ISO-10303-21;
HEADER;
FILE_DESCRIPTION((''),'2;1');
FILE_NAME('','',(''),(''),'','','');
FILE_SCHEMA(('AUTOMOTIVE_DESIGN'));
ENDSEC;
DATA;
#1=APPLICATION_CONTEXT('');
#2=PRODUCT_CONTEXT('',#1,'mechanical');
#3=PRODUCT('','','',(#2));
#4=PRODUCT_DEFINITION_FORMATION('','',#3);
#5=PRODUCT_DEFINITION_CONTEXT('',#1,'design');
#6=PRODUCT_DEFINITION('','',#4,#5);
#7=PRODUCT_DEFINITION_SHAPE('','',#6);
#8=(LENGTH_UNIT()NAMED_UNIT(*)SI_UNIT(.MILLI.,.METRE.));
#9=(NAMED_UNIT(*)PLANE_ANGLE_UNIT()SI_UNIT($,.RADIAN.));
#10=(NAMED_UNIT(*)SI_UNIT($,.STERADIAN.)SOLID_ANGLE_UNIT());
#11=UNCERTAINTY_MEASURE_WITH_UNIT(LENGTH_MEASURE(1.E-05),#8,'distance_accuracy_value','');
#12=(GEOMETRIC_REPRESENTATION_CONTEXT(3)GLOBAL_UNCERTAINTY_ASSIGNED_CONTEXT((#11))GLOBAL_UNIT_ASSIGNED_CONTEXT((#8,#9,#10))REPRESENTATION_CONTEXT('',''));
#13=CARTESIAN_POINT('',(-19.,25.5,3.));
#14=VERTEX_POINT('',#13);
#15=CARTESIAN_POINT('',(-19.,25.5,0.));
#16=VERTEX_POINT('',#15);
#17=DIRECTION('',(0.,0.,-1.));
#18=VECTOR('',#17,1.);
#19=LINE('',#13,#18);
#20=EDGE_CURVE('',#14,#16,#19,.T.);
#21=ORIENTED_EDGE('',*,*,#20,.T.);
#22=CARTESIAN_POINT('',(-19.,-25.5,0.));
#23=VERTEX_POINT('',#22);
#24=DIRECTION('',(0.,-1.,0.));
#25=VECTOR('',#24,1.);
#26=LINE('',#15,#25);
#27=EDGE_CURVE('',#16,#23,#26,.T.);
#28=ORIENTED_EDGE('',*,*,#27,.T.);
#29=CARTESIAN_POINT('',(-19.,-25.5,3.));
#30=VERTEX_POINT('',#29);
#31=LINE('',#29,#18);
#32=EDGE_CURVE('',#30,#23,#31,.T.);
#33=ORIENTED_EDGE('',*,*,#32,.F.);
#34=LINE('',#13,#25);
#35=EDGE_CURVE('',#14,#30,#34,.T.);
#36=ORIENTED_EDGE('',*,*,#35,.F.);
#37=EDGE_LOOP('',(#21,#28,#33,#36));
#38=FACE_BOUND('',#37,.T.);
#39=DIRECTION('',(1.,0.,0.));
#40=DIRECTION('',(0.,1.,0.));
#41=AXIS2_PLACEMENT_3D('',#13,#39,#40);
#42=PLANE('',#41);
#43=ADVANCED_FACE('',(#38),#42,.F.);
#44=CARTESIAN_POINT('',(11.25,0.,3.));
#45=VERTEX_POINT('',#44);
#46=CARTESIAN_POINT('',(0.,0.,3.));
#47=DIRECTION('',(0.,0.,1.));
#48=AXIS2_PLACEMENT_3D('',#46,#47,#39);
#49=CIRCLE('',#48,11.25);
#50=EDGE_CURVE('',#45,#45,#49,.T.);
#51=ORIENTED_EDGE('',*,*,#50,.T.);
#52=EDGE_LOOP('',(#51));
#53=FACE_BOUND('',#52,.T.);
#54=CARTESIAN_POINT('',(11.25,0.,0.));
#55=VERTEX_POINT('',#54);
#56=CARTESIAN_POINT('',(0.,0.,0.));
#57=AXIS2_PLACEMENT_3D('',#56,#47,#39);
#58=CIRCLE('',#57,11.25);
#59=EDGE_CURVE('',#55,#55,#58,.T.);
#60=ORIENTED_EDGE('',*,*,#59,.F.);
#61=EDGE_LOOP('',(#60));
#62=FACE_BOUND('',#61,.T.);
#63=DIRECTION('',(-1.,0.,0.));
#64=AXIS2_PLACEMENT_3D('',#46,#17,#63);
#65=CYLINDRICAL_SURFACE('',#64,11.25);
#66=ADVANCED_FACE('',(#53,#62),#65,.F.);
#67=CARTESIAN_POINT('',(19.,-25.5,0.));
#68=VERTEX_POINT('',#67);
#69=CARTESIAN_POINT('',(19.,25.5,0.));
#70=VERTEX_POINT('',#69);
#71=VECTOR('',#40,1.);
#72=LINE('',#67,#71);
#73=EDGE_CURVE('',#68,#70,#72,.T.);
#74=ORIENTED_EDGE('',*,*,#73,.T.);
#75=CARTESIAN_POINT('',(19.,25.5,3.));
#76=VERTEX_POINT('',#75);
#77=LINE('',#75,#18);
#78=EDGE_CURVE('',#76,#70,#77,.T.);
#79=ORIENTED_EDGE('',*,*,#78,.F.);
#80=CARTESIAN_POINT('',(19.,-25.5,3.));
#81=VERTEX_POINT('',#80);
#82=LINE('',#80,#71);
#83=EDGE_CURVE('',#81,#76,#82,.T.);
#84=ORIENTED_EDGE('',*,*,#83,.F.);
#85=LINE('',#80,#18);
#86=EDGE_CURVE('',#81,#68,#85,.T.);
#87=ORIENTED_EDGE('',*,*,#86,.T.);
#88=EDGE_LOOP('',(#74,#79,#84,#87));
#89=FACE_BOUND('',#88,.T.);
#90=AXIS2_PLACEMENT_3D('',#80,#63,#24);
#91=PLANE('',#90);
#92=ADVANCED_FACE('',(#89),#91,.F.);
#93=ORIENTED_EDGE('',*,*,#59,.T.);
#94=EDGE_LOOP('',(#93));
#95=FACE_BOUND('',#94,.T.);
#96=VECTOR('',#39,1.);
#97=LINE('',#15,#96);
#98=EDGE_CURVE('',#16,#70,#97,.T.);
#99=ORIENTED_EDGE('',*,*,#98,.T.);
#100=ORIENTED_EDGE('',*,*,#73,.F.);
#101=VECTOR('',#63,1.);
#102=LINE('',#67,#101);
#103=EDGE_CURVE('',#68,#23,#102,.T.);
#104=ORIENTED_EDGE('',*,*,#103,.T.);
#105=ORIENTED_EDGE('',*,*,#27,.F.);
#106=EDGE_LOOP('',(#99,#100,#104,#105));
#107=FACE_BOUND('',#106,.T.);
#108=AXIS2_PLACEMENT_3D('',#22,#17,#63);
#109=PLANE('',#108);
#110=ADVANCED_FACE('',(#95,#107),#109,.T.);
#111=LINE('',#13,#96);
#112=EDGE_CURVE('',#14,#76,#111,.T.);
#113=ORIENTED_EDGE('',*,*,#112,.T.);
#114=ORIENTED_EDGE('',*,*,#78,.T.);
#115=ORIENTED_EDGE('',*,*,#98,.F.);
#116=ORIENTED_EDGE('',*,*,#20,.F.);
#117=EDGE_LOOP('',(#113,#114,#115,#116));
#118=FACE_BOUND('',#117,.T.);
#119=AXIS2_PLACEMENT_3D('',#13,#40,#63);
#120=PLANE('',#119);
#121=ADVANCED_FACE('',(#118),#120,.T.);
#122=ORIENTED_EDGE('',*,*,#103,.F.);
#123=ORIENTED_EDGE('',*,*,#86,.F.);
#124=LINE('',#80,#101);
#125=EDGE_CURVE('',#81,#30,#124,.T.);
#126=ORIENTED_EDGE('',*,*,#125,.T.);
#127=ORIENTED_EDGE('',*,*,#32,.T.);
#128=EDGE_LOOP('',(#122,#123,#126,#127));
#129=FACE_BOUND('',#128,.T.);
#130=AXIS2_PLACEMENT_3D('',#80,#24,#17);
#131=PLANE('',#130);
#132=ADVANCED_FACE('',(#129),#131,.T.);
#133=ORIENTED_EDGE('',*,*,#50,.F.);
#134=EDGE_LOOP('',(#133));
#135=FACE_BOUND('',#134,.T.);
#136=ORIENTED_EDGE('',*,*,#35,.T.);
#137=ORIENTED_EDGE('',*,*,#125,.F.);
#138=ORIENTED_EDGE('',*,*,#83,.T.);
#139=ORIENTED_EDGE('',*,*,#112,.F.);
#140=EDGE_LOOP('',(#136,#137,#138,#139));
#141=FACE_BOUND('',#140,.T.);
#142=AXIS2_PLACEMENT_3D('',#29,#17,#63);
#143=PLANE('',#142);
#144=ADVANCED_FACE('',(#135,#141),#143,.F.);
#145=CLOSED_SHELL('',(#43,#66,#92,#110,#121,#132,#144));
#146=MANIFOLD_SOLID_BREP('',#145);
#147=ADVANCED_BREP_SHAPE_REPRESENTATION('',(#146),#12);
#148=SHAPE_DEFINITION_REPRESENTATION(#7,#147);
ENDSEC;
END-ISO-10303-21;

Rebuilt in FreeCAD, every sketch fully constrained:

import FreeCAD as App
import Part
import Sketcher

V = App.Vector
Q = App.Units.Quantity


def add_polygon(sketch, points):
    """Adds a closed chain of lines whose ends are joined by coincident constraints."""
    first, n = sketch.GeometryCount, len(points)
    for a, b in zip(points, points[1:] + points[:1]):
        sketch.addGeometry(Part.LineSegment(App.Vector(*a, 0), App.Vector(*b, 0)), False)
    for i in range(n):
        sketch.addConstraint(Sketcher.Constraint("Coincident", first + i, 2, first + (i + 1) % n, 1))

doc = App.newDocument("Part")
params = doc.addObject("Spreadsheet::Sheet", "Params")
for row, (alias, value) in enumerate([
    ("sketch1_diameter", "22.5 mm"),
    ("sketch1_width", "38 mm"),
    ("sketch1_height", "51 mm"),
    ("pad1_length", "3 mm"),
], start=1):
    params.set(f"A{row}", alias)
    params.set(f"B{row}", "=" + value)
    params.setAlias(f"B{row}", alias)

body = doc.addObject("PartDesign::Body", "Body")

# Sketch on XY plane
sketch1 = body.newObject("Sketcher::SketchObject", "Sketch")
sketch1.AttachmentSupport = (doc.getObject("XY_Plane"), [""])
sketch1.MapMode = "FlatFace"
add_polygon(sketch1, [(-19, 26), (-19, -26), (19, -26), (19, 26)])  # lines 0-3
sketch1.addGeometry(Part.Circle(V(0, 0, 0), V(0, 0, 1), 11), False)  # 4
sketch1.addConstraint(Sketcher.Constraint("Vertical", 0))
sketch1.addConstraint(Sketcher.Constraint("Horizontal", 1))
sketch1.addConstraint(Sketcher.Constraint("Vertical", 2))
sketch1.addConstraint(Sketcher.Constraint("Horizontal", 3))
sketch1.addConstraint(Sketcher.Constraint("Coincident", 4, 3, -1, 1))
sketch1.addConstraint(Sketcher.Constraint("Symmetric", 0, 2, 2, 2, -1, 1))
sketch1.addConstraint(Sketcher.Constraint("Diameter", 4, Q("22.5 mm")))
sketch1.addConstraint(Sketcher.Constraint("DistanceX", 1, 1, 1, 2, Q("38 mm")))
sketch1.addConstraint(Sketcher.Constraint("DistanceY", 0, 2, 0, 1, Q("51 mm")))
sketch1.setExpression("Constraints[10]", "Params.sketch1_diameter")
sketch1.setExpression("Constraints[11]", "Params.sketch1_width")
sketch1.setExpression("Constraints[12]", "Params.sketch1_height")
pad1 = body.newObject("PartDesign::Pad", "Pad")
pad1.Profile = sketch1
pad1.setExpression("Length", "Params.pad1_length")

doc.recompute()
